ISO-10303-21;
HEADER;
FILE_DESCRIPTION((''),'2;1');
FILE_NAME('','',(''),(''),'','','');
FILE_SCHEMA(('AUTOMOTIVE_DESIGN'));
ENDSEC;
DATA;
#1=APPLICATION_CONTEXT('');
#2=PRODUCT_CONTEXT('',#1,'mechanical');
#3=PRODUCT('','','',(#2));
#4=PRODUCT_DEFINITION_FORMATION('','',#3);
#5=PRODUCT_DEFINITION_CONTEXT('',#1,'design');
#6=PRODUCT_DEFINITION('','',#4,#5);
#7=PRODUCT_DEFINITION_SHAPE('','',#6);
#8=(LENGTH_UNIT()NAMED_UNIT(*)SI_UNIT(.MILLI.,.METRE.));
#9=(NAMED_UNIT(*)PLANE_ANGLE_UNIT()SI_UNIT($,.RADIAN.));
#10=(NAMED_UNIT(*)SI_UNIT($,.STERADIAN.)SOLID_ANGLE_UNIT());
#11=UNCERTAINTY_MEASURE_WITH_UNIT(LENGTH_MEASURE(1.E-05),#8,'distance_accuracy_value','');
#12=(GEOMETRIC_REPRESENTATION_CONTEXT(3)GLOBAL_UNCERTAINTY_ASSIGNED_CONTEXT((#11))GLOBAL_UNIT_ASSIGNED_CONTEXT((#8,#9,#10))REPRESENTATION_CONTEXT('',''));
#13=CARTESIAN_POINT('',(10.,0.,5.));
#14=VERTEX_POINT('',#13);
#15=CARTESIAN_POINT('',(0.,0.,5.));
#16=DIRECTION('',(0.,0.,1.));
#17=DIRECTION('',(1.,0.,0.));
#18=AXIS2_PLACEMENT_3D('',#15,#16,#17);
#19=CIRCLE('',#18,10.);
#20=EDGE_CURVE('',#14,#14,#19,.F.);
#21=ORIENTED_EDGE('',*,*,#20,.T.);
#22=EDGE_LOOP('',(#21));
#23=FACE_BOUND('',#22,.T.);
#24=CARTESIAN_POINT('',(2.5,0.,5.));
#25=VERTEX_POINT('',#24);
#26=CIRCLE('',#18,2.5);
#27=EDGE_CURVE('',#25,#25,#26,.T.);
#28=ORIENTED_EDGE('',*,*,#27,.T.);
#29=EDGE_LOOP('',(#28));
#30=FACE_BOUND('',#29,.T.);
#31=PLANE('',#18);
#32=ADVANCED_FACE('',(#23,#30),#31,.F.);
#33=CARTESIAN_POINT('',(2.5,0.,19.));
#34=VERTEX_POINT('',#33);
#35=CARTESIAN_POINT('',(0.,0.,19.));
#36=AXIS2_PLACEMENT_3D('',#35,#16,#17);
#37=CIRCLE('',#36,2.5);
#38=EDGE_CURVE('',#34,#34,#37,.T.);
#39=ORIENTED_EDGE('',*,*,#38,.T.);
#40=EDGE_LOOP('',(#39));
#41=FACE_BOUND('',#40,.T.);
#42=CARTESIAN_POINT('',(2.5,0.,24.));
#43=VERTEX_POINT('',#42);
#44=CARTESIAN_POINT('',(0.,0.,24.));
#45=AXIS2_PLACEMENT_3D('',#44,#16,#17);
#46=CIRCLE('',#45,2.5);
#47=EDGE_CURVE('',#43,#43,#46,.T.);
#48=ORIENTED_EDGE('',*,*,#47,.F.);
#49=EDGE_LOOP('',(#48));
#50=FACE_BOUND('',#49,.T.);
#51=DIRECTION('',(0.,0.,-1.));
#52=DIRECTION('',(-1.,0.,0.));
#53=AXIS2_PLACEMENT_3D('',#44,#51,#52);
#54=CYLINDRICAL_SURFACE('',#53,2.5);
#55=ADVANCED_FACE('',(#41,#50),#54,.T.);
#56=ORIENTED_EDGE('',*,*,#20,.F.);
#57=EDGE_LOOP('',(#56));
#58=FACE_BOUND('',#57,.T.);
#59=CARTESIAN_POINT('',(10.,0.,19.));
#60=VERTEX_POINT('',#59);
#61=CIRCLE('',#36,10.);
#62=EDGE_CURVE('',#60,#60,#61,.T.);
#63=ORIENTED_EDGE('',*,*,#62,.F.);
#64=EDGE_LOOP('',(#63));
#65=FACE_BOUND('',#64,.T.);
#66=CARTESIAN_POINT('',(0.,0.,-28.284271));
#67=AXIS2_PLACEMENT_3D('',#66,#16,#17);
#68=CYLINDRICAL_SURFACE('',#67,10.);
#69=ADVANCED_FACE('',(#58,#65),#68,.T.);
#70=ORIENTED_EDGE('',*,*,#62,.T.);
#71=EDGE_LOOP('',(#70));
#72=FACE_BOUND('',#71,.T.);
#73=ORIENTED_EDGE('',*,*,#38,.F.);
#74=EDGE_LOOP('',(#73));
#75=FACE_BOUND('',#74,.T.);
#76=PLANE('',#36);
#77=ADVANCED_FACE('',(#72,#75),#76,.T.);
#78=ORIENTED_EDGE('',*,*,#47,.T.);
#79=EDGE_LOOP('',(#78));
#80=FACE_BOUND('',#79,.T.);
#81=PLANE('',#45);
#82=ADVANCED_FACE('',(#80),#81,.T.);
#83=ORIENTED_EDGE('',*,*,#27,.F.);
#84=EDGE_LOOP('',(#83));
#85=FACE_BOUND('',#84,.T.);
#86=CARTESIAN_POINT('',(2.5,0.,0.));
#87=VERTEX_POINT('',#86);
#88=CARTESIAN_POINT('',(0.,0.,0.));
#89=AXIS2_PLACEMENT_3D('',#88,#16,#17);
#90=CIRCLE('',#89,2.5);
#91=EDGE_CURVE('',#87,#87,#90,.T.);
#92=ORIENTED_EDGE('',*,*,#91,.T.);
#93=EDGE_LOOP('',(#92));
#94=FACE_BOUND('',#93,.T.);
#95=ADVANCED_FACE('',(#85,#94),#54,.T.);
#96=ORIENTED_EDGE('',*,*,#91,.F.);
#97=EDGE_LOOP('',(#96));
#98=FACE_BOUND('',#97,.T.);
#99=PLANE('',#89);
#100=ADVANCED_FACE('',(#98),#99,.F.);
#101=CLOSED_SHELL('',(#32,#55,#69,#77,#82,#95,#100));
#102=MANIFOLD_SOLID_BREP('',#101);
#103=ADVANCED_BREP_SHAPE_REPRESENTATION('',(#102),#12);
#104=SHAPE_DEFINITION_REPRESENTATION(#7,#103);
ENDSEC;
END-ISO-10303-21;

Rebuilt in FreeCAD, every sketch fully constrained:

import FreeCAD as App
import Part
import Sketcher

V = App.Vector

doc = App.newDocument("Part")
params = doc.addObject("Spreadsheet::Sheet", "Params")
for row, (alias, value) in enumerate([
    ("sketch1_diameter", "5 mm"),
    ("pad1_length", "24 mm"),
    ("sketch2_diameter", "20 mm"),
    ("pad2_length", "14 mm"),
], start=1):
    params.set(f"A{row}", alias)
    params.set(f"B{row}", "=" + value)
    params.setAlias(f"B{row}", alias)

body = doc.addObject("PartDesign::Body", "Body")

# Sketch on XY plane
sketch1 = doc.addObject("Sketcher::SketchObject", "Sketch")
body.addObject(sketch1)
sketch1.AttachmentSupport = (doc.XY_Plane, [""])
sketch1.MapMode = "FlatFace"
sketch1.addGeometry(Part.Circle(V(0, 0, 0), V(0, 0, 1), 2.5), False)
sketch1.addConstraint(Sketcher.Constraint("Coincident", 0, 3, -1, 1))
sketch1.addConstraint(Sketcher.Constraint("Diameter", 0, 5.0))
sketch1.setExpression("Constraints[1]", "Params.sketch1_diameter")
pad1 = doc.addObject("PartDesign::Pad", "Pad")
body.addObject(pad1)
pad1.Profile = sketch1
pad1.setExpression("Length", "Params.pad1_length")

# Sketch on XY plane
sketch2 = doc.addObject("Sketcher::SketchObject", "Sketch001")
body.addObject(sketch2)
sketch2.AttachmentSupport = (doc.XY_Plane, [""])
sketch2.MapMode = "FlatFace"
sketch2.AttachmentOffset = App.Placement(V(0, 0, 19), App.Rotation())
sketch2.addGeometry(Part.Circle(V(0, 0, 0), V(0, 0, 1), 10), False)
sketch2.addConstraint(Sketcher.Constraint("Coincident", 0, 3, -1, 1))
sketch2.addConstraint(Sketcher.Constraint("Diameter", 0, 20.0))
sketch2.setExpression("Constraints[1]", "Params.sketch2_diameter")
pad2 = doc.addObject("PartDesign::Pad", "Pad001")
body.addObject(pad2)
pad2.Profile = sketch2
pad2.setExpression("Length", "Params.pad2_length")
pad2.Reversed = True

doc.recompute()
